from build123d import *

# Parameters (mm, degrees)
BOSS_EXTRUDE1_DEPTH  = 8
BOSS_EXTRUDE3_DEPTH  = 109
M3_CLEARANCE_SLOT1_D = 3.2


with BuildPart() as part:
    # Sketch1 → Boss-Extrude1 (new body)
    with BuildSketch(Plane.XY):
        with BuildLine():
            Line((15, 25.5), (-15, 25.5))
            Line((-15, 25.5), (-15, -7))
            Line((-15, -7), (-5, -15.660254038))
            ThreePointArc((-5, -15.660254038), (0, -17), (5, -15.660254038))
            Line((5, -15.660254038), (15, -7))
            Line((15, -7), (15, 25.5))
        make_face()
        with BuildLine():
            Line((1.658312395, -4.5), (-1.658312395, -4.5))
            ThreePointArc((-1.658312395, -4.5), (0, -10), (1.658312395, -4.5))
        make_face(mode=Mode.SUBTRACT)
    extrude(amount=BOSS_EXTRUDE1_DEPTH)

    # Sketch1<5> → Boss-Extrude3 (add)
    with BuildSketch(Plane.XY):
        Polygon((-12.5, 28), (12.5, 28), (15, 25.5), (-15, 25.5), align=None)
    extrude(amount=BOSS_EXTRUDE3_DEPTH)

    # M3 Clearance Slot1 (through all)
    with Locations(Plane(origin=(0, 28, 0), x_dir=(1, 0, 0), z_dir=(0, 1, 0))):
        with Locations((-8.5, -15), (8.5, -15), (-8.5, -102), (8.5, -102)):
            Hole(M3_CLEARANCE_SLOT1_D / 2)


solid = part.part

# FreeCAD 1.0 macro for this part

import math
import FreeCAD as App
import Part
import Sketcher

doc = App.newDocument("Part")
body = doc.addObject("PartDesign::Body", "Body")

sketch1 = body.newObject("Sketcher::SketchObject", "Sketch")
sketch1.AttachmentSupport = (doc.getObject("XY_Plane"), [""])
sketch1.MapMode = "FlatFace"
sketch1.addGeometry([
    Part.LineSegment(App.Vector(15, 25.5, 0), App.Vector(-15, 25.5, 0)),
    Part.LineSegment(App.Vector(-15, 25.5, 0), App.Vector(-15, -7, 0)),
    Part.LineSegment(App.Vector(-15, -7, 0), App.Vector(-5, -15.7, 0)),
    Part.ArcOfCircle(Part.Circle(App.Vector(0, -7, 0), App.Vector(0, 0, 1), 10), math.radians(-120), math.radians(-60)),
    Part.LineSegment(App.Vector(5, -15.7, 0), App.Vector(15, -7, 0)),
    Part.LineSegment(App.Vector(15, -7, 0), App.Vector(15, 25.5, 0)),
    Part.LineSegment(App.Vector(-1.7, -4.5, 0), App.Vector(1.7, -4.5, 0)),
    Part.ArcOfCircle(Part.Circle(App.Vector(0, -7, 0), App.Vector(0, 0, 1), 3), math.radians(124), math.radians(416)),
], False)
sketch1.addConstraint([
    Sketcher.Constraint("Coincident", 0, 2, 1, 1),
    Sketcher.Constraint("Coincident", 1, 2, 2, 1),
    Sketcher.Constraint("Coincident", 2, 2, 3, 1),
    Sketcher.Constraint("Coincident", 3, 2, 4, 1),
    Sketcher.Constraint("Coincident", 4, 2, 5, 1),
    Sketcher.Constraint("Coincident", 5, 2, 0, 1),
    Sketcher.Constraint("Coincident", 6, 1, 7, 1),
    Sketcher.Constraint("Coincident", 7, 2, 6, 2),
    Sketcher.Constraint("Horizontal", 0),
    Sketcher.Constraint("Vertical", 1),
    Sketcher.Constraint("Vertical", 5),
    Sketcher.Constraint("Horizontal", 6),
    Sketcher.Constraint("Coincident", 7, 3, 3, 3),
    Sketcher.Constraint("Symmetric", 2, 2, 3, 2, -2),
    Sketcher.Constraint("Symmetric", 1, 2, 4, 2, -2),
    Sketcher.Constraint("Horizontal", 7, 3, 1, 2),
    Sketcher.Constraint("Radius", 3, 10.0),
    Sketcher.Constraint("Radius", 7, 3.0),
    Sketcher.Constraint("DistanceX", 0, 2, 0, 1, 30.0),
    Sketcher.Constraint("DistanceY", 1, 2, 1, 1, 32.5),
    Sketcher.Constraint("DistanceY", 3, 3, -1, 1, 7.0),
    Sketcher.Constraint("DistanceX", 2, 2, -1, 1, 5.0),
    Sketcher.Constraint("DistanceY", 6, 1, -1, 1, 4.5),
])
pad1 = body.newObject("PartDesign::Pad", "Pad")
pad1.Profile = sketch1
pad1.Length = 8

sketch2 = body.newObject("Sketcher::SketchObject", "Sketch001")
sketch2.AttachmentSupport = (doc.getObject("XY_Plane"), [""])
sketch2.MapMode = "FlatFace"
sketch2.addGeometry([
    Part.LineSegment(App.Vector(12.5, 28, 0), App.Vector(-12.5, 28, 0)),
    Part.LineSegment(App.Vector(-12.5, 28, 0), App.Vector(-15, 25.5, 0)),
    Part.LineSegment(App.Vector(-15, 25.5, 0), App.Vector(15, 25.5, 0)),
    Part.LineSegment(App.Vector(15, 25.5, 0), App.Vector(12.5, 28, 0)),
], False)
sketch2.addConstraint([
    Sketcher.Constraint("Coincident", 0, 2, 1, 1),
    Sketcher.Constraint("Coincident", 1, 2, 2, 1),
    Sketcher.Constraint("Coincident", 2, 2, 3, 1),
    Sketcher.Constraint("Coincident", 3, 2, 0, 1),
    Sketcher.Constraint("Horizontal", 0),
    Sketcher.Constraint("Horizontal", 2),
    Sketcher.Constraint("Perpendicular", 1, 3),
    Sketcher.Constraint("Equal", 1, 3),
    Sketcher.Constraint("DistanceX", 0, 2, 0, 1, 25.0),
    Sketcher.Constraint("DistanceX", 2, 1, 2, 2, 30.0),
    Sketcher.Constraint("DistanceY", -1, 1, 0, 2, 28.0),
    Sketcher.Constraint("DistanceX", 1, 2, -1, 1, 15.0),
])
pad2 = body.newObject("PartDesign::Pad", "Pad001")
pad2.Profile = sketch2
pad2.Length = 109

sketch3 = body.newObject("Sketcher::SketchObject", "Sketch002")
sketch3.AttachmentSupport = (doc.getObject("XZ_Plane"), [""])
sketch3.MapMode = "FlatFace"
sketch3.AttachmentOffset = App.Placement(App.Vector(0, 0, -28), App.Rotation())
sketch3.addGeometry([
    Part.Circle(App.Vector(-8.5, 15, 0), App.Vector(0, 0, 1), 1.6),
    Part.Circle(App.Vector(8.5, 15, 0), App.Vector(0, 0, 1), 1.6),
    Part.Circle(App.Vector(-8.5, 102, 0), App.Vector(0, 0, 1), 1.6),
    Part.Circle(App.Vector(8.5, 102, 0), App.Vector(0, 0, 1), 1.6),
], False)
sketch3.addConstraint([
    Sketcher.Constraint("Equal", 0, 1),
    Sketcher.Constraint("Equal", 1, 2),
    Sketcher.Constraint("Equal", 2, 3),
    Sketcher.Constraint("Symmetric", 0, 3, 1, 3, -2),
    Sketcher.Constraint("Symmetric", 2, 3, 3, 3, -2),
    Sketcher.Constraint("Vertical", 0, 3, 2, 3),
    Sketcher.Constraint("Diameter", 0, 3.2),
    Sketcher.Constraint("DistanceY", -1, 1, 0, 3, 15.0),
    Sketcher.Constraint("DistanceY", -1, 1, 2, 3, 102.0),
    Sketcher.Constraint("DistanceX", 0, 3, 1, 3, 17.0),
])
doc.recompute()
hole = body.newObject("PartDesign::Hole", "Hole")
hole.Profile = sketch3
hole.ThreadType = "None"
hole.Diameter = 3.2
hole.DepthType = "ThroughAll"
hole.Reversed = True

doc.recompute()
